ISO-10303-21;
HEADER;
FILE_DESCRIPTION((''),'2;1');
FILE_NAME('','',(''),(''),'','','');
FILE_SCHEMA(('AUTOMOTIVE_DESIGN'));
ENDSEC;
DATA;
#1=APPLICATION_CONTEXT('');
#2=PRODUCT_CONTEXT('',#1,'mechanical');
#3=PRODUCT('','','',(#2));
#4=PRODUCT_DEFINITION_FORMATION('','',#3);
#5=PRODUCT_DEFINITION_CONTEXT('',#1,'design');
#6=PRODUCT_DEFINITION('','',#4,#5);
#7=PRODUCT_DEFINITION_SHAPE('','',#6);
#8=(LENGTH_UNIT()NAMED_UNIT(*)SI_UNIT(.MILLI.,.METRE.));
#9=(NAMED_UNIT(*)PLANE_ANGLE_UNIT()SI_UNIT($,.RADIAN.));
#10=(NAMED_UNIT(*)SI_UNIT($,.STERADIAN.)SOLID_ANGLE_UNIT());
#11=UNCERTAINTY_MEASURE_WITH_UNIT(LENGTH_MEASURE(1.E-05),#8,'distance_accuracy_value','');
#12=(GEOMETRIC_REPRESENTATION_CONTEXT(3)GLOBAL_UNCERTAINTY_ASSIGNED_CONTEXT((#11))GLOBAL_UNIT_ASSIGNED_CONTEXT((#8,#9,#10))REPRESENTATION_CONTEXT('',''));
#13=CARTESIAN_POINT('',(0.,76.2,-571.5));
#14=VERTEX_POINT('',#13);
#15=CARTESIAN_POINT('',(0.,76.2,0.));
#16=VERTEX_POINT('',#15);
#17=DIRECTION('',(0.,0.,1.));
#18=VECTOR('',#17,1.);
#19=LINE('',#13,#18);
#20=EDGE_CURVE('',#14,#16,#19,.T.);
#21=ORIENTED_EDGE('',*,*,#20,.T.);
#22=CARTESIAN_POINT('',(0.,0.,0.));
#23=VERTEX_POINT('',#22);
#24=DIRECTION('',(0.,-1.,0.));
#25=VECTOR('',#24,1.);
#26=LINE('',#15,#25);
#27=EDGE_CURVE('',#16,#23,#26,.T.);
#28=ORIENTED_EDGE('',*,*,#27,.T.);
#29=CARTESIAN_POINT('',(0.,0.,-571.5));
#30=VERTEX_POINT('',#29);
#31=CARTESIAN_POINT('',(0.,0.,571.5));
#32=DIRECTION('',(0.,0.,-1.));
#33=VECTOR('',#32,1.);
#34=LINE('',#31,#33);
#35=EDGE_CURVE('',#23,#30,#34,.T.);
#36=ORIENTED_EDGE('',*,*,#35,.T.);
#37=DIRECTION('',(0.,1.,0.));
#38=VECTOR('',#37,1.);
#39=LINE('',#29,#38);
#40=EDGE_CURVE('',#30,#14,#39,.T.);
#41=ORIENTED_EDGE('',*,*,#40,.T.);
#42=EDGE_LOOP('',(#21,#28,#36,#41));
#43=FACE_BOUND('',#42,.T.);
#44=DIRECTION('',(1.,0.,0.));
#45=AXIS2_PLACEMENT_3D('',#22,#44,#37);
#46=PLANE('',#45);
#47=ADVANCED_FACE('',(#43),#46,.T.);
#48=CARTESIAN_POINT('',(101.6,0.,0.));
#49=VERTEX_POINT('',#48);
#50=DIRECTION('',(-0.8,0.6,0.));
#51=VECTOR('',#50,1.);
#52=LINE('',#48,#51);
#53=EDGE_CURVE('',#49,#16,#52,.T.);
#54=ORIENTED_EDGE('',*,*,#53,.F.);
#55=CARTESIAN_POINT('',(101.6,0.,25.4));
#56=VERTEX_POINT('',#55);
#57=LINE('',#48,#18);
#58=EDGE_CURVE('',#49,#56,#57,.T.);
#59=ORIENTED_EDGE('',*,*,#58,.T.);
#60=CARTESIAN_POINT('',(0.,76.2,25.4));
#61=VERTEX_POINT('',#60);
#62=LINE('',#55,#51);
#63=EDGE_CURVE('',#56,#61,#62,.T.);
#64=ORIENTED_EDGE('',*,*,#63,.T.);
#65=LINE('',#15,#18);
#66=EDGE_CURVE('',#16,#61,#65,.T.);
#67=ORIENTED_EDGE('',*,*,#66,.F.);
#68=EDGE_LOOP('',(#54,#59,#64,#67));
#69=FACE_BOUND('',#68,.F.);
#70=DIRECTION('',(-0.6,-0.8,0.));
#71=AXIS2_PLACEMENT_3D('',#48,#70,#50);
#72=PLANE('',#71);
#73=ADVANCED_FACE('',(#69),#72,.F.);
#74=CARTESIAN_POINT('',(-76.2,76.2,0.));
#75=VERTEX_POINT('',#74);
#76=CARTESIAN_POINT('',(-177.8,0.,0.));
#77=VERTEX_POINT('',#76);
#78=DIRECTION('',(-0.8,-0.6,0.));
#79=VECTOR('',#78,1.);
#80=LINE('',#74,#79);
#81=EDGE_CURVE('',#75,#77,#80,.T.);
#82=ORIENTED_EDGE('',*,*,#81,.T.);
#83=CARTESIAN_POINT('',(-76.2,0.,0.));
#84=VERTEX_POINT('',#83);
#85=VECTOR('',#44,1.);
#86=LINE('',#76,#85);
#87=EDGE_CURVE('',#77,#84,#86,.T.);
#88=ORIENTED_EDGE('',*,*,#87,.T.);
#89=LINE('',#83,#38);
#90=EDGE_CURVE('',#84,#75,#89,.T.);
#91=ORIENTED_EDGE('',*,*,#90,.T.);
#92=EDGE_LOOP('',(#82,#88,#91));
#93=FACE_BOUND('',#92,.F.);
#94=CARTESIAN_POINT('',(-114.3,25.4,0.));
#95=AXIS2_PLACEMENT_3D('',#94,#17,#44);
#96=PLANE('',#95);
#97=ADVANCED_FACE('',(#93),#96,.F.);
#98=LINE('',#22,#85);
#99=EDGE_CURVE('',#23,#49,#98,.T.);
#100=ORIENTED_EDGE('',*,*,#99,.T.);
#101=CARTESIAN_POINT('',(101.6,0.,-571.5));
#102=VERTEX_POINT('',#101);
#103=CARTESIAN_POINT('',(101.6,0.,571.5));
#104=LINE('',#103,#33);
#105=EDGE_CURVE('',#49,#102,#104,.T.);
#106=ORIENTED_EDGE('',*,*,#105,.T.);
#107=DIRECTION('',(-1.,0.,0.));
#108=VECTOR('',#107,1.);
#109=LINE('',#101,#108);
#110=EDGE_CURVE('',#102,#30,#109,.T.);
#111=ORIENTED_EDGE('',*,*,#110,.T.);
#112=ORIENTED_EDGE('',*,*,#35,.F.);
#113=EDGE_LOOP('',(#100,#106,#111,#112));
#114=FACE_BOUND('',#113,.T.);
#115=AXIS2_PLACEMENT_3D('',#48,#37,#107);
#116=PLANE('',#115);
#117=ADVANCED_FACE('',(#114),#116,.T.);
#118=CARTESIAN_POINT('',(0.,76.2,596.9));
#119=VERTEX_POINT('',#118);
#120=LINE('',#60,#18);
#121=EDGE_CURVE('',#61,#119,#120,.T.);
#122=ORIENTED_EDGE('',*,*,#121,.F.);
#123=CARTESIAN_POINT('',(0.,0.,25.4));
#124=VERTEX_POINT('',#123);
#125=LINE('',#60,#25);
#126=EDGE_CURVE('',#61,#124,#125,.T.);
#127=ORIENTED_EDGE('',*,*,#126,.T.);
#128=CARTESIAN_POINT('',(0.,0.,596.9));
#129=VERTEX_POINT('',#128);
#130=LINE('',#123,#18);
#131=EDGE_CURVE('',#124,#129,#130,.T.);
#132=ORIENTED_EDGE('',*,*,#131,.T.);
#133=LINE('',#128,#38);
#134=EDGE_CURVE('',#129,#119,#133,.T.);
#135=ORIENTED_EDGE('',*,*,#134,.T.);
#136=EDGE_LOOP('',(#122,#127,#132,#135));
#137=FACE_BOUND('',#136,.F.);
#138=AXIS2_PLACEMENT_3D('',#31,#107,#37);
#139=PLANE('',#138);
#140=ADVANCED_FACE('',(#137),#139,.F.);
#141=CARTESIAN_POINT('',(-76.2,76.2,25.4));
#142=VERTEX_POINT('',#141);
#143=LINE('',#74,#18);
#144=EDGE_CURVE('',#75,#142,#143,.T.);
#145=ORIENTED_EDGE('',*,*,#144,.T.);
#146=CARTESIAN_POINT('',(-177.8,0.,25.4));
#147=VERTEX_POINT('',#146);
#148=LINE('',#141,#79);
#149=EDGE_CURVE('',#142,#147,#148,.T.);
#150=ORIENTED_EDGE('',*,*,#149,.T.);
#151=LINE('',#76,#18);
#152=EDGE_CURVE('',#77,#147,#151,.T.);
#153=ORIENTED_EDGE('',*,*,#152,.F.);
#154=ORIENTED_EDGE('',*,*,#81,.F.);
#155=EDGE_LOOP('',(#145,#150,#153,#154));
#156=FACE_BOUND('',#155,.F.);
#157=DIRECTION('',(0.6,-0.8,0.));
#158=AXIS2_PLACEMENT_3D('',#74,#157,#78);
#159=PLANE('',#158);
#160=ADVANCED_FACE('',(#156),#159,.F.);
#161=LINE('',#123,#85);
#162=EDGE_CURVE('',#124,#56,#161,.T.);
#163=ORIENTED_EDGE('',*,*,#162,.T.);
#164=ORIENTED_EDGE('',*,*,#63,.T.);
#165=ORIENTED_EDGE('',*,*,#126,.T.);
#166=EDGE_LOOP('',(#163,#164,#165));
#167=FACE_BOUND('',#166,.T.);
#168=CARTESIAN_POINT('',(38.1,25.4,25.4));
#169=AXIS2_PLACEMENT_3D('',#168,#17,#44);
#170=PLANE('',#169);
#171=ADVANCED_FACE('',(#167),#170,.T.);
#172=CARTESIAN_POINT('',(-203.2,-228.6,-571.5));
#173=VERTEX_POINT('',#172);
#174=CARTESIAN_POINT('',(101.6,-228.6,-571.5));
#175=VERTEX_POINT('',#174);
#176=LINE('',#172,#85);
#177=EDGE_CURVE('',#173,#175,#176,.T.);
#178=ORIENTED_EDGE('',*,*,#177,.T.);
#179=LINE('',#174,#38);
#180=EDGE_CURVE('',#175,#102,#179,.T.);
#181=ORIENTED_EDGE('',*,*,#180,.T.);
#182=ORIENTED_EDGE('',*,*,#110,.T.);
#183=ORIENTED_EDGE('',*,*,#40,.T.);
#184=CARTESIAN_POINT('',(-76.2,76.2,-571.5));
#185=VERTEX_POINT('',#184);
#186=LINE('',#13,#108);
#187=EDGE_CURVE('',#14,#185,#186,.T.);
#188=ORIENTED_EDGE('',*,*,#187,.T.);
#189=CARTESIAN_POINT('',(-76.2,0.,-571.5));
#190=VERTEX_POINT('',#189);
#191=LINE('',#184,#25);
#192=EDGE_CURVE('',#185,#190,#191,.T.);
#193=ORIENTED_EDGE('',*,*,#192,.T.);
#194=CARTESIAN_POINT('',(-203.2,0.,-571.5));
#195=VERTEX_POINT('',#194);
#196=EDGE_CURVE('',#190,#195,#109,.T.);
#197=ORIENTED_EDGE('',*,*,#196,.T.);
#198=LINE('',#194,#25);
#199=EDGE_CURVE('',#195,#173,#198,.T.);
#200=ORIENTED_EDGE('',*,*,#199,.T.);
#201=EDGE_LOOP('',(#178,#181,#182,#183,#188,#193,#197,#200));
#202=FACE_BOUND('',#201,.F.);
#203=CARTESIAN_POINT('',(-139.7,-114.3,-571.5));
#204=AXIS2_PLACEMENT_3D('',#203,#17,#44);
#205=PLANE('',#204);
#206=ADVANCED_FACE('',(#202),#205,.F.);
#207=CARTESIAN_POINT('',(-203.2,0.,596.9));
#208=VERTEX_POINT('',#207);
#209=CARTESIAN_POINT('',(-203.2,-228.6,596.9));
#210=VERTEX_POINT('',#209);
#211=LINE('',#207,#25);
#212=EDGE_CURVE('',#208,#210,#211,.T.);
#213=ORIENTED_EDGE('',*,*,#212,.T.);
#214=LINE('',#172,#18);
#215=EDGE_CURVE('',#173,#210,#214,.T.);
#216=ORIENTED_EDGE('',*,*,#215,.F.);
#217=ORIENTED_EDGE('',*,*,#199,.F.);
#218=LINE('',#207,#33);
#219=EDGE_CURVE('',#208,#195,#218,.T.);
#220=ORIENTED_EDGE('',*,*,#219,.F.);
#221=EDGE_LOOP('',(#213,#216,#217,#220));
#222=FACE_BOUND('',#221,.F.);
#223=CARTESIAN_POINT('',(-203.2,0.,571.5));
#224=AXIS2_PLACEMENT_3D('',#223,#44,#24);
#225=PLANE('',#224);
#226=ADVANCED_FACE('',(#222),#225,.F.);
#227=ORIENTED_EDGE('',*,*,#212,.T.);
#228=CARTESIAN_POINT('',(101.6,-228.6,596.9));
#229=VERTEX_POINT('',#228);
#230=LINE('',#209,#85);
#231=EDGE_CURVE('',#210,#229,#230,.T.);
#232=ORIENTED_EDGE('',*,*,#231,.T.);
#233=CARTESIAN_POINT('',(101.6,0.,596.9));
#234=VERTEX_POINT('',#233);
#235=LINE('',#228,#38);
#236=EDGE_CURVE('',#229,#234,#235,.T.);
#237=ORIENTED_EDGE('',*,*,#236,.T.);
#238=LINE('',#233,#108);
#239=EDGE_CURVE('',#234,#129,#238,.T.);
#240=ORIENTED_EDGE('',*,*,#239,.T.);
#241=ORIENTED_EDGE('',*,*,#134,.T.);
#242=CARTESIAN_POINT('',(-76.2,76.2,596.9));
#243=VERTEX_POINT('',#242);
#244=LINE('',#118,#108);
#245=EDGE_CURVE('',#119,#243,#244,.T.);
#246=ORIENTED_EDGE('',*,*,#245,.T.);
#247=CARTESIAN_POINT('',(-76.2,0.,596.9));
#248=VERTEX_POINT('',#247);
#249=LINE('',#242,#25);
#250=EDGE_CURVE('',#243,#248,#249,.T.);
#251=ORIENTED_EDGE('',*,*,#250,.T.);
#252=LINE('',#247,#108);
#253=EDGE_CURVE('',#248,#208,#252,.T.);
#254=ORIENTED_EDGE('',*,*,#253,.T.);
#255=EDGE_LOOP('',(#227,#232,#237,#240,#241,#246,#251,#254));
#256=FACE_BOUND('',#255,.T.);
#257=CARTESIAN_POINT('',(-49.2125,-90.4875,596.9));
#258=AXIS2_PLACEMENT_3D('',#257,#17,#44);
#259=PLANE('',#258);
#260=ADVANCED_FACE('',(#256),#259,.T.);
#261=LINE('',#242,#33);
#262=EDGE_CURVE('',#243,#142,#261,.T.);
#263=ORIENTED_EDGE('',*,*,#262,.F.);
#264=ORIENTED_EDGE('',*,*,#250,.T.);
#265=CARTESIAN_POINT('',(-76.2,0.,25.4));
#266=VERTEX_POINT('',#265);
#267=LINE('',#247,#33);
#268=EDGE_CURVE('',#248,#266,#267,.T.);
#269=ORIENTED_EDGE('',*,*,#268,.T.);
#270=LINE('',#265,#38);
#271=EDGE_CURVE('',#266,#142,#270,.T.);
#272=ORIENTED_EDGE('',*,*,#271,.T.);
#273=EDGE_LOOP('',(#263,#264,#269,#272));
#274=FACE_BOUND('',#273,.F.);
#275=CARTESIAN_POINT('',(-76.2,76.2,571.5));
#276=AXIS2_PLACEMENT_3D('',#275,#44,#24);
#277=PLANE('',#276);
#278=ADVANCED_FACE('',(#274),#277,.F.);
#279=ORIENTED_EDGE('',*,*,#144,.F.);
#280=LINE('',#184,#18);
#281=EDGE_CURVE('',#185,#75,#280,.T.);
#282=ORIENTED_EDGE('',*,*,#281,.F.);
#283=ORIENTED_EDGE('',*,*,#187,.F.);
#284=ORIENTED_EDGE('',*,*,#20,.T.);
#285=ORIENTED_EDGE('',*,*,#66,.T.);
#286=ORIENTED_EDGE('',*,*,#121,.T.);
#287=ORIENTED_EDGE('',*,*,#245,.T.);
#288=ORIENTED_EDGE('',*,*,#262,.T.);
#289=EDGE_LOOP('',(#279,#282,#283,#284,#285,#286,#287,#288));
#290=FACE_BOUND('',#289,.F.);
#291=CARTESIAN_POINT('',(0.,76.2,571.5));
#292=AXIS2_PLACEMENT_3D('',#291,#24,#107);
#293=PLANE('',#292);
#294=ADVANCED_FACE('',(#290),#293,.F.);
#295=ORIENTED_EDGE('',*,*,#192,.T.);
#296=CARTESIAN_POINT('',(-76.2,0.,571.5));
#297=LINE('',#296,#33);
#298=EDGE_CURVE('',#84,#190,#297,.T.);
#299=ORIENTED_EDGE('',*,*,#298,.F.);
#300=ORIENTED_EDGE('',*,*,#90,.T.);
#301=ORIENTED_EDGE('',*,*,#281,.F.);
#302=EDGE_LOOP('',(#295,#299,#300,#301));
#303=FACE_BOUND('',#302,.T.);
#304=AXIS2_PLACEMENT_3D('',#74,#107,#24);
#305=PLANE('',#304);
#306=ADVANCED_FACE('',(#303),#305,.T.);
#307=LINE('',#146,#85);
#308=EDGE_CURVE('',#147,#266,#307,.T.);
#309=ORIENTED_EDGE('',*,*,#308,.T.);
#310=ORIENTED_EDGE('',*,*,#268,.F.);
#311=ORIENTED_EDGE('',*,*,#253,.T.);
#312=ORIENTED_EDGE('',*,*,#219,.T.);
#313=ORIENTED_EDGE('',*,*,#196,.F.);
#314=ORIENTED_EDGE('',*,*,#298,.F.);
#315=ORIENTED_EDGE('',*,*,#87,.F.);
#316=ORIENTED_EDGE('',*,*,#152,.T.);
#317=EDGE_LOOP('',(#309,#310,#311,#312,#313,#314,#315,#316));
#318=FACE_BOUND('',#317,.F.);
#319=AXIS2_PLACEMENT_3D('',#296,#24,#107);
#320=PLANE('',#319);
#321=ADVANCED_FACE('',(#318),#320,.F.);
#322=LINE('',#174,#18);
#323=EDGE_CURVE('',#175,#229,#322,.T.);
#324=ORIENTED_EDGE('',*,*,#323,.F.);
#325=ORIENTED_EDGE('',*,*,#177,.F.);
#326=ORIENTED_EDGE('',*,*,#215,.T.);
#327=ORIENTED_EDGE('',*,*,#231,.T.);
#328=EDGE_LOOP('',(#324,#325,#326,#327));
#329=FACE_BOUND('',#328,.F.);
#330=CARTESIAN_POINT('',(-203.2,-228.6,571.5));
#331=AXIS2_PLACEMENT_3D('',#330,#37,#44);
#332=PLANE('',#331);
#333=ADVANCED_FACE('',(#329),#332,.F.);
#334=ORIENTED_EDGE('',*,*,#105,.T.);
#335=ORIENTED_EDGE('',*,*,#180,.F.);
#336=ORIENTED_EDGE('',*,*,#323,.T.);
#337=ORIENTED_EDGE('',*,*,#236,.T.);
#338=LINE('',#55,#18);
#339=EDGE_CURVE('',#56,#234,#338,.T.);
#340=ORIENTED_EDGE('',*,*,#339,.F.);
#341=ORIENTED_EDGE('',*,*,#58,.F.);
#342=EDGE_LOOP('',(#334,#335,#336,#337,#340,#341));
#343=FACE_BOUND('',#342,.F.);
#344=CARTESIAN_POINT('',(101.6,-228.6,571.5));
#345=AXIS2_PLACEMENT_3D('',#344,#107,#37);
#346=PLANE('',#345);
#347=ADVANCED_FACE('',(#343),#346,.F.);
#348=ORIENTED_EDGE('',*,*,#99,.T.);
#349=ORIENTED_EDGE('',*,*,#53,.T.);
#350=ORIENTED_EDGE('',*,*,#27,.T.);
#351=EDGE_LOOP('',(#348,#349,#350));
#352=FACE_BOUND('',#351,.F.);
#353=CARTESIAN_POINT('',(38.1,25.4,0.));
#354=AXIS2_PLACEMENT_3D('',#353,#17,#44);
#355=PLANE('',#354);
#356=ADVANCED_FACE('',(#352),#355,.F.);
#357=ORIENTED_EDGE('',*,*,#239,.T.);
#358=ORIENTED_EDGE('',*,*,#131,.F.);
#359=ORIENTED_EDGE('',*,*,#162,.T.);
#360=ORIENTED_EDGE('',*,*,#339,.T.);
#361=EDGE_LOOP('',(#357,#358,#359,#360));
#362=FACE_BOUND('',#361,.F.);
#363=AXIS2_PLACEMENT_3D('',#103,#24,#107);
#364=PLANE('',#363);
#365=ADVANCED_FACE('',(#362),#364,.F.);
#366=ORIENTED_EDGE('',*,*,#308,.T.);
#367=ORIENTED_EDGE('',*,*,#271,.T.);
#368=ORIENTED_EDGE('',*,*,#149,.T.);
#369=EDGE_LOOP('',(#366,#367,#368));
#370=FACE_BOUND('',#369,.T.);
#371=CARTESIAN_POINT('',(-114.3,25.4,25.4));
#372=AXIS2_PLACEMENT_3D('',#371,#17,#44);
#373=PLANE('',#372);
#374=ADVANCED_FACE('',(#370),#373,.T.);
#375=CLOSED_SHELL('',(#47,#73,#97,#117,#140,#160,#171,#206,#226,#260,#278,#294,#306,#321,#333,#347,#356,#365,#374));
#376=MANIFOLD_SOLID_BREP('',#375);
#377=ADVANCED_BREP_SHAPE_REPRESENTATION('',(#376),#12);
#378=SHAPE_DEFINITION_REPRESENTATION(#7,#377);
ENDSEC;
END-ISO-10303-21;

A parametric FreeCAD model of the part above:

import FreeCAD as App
import Part
import Sketcher
from FreeCAD import Vector
Q = App.Units.Quantity


def add_polygon(sketch, points):
    """Adds a closed chain of lines whose ends are joined by coincident constraints."""
    first, n = sketch.GeometryCount, len(points)
    for a, b in zip(points, points[1:] + points[:1]):
        sketch.addGeometry(Part.LineSegment(App.Vector(*a, 0), App.Vector(*b, 0)), False)
    for i in range(n):
        sketch.addConstraint(Sketcher.Constraint("Coincident", first + i, 2, first + (i + 1) % n, 1))

doc = App.newDocument("Part")
body = doc.addObject("PartDesign::Body", "Body")

sketch1 = body.newObject("Sketcher::SketchObject", "Sketch")
sketch1.AttachmentSupport = (doc.getObject("XY_Plane"), [""])
sketch1.MapMode = "FlatFace"
add_polygon(sketch1, [(0, 0), (0, 76.2), (-76.2, 76.2), (-76.2, 0)])
sketch1.addConstraint(Sketcher.Constraint("Vertical", 0))
sketch1.addConstraint(Sketcher.Constraint("Horizontal", 1))
sketch1.addConstraint(Sketcher.Constraint("Vertical", 2))
sketch1.addConstraint(Sketcher.Constraint("Horizontal", 3))
sketch1.addConstraint(Sketcher.Constraint("Coincident", 3, 2, -1, 1))
sketch1.addConstraint(Sketcher.Constraint("Equal", 3, 0))
sketch1.addConstraint(Sketcher.Constraint("DistanceX", 1, 2, 1, 1, Q("3 in")))
pad1 = body.newObject("PartDesign::Pad", "Pad")
pad1.Profile = sketch1
pad1.Length = Q("45 in")
pad1.Midplane = True

sketch2 = body.newObject("Sketcher::SketchObject", "Sketch001")
sketch2.AttachmentSupport = (doc.getObject("XY_Plane"), [""])
sketch2.MapMode = "FlatFace"
add_polygon(sketch2, [(-177.8, 0), (-76.2, 0), (-76.2, 76.2)])
add_polygon(sketch2, [(0, 76.2), (0, 0), (101.6, 0)])
sketch2.addConstraint(Sketcher.Constraint("Horizontal", 0))
sketch2.addConstraint(Sketcher.Constraint("Vertical", 1))
sketch2.addConstraint(Sketcher.Constraint("Vertical", 3))
sketch2.addConstraint(Sketcher.Constraint("Horizontal", 4))
sketch2.addConstraint(Sketcher.Constraint("Coincident", 3, 2, -1, 1))
sketch2.addConstraint(Sketcher.Constraint("PointOnObject", 0, 2, -1))
sketch2.addConstraint(Sketcher.Constraint("Horizontal", 1, 2, 5, 2))
sketch2.addConstraint(Sketcher.Constraint("Equal", 0, 4))
sketch2.addConstraint(Sketcher.Constraint("DistanceX", 0, 1, 0, 2, Q("4 in")))
sketch2.addConstraint(Sketcher.Constraint("DistanceY", 1, 1, 1, 2, Q("3 in")))
sketch2.addConstraint(Sketcher.Constraint("DistanceX", 0, 2, -1, 1, Q("3 in")))
pad2 = body.newObject("PartDesign::Pad", "Pad001")
pad2.Profile = sketch2
pad2.Length = Q("1 in")

sketch3 = body.newObject("Sketcher::SketchObject", "Sketch002")
sketch3.AttachmentSupport = (doc.getObject("XY_Plane"), [""])
sketch3.MapMode = "FlatFace"
add_polygon(sketch3, [(-203.2, 0), (-203.2, -228.6), (101.6, -228.6), (101.6, 0)])
sketch3.addConstraint(Sketcher.Constraint("Vertical", 0))
sketch3.addConstraint(Sketcher.Constraint("Horizontal", 1))
sketch3.addConstraint(Sketcher.Constraint("Vertical", 2))
sketch3.addConstraint(Sketcher.Constraint("Horizontal", 3))
sketch3.addConstraint(Sketcher.Constraint("PointOnObject", 2, 2, -1))
sketch3.addConstraint(Sketcher.Constraint("DistanceX", 1, 1, 1, 2, Q("12 in")))
sketch3.addConstraint(Sketcher.Constraint("DistanceY", 0, 2, 0, 1, Q("9 in")))
sketch3.addConstraint(Sketcher.Constraint("DistanceX", 0, 2, -1, 1, Q("8 in")))
pad3 = body.newObject("PartDesign::Pad", "Pad002")
pad3.Profile = sketch3
pad3.Length = Q("45 in")
pad3.Midplane = True

sketch4 = body.newObject("Sketcher::SketchObject", "Sketch003")
sketch4.AttachmentSupport = (doc.getObject("XY_Plane"), [""])
sketch4.MapMode = "FlatFace"
sketch4.AttachmentOffset = App.Placement(Vector(0, 0, 22.5 * 25.4), App.Rotation())
add_polygon(sketch4, [(-203.2, 0), (-203.2, -228.6), (101.6, -228.6), (101.6, 0), (0, 0), (0, 76.2), (-76.2, 76.2), (-76.2, 0)])
sketch4.addConstraint(Sketcher.Constraint("Vertical", 0))
sketch4.addConstraint(Sketcher.Constraint("Horizontal", 1))
sketch4.addConstraint(Sketcher.Constraint("Vertical", 2))
sketch4.addConstraint(Sketcher.Constraint("Horizontal", 3))
sketch4.addConstraint(Sketcher.Constraint("Vertical", 4))
sketch4.addConstraint(Sketcher.Constraint("Horizontal", 5))
sketch4.addConstraint(Sketcher.Constraint("Vertical", 6))
sketch4.addConstraint(Sketcher.Constraint("Horizontal", 7))
sketch4.addConstraint(Sketcher.Constraint("Coincident", 3, 2, -1, 1))
sketch4.addConstraint(Sketcher.Constraint("PointOnObject", 6, 2, -1))
sketch4.addConstraint(Sketcher.Constraint("Equal", 5, 4))
sketch4.addConstraint(Sketcher.Constraint("DistanceX", 1, 1, 1, 2, Q("12 in")))
sketch4.addConstraint(Sketcher.Constraint("DistanceX", 3, 2, 3, 1, Q("4 in")))
sketch4.addConstraint(Sketcher.Constraint("DistanceX", 5, 2, 5, 1, Q("3 in")))
sketch4.addConstraint(Sketcher.Constraint("DistanceY", 0, 2, 0, 1, Q("9 in")))
pad4 = body.newObject("PartDesign::Pad", "Pad003")
pad4.Profile = sketch4
pad4.Length = Q("1 in")

doc.recompute()
